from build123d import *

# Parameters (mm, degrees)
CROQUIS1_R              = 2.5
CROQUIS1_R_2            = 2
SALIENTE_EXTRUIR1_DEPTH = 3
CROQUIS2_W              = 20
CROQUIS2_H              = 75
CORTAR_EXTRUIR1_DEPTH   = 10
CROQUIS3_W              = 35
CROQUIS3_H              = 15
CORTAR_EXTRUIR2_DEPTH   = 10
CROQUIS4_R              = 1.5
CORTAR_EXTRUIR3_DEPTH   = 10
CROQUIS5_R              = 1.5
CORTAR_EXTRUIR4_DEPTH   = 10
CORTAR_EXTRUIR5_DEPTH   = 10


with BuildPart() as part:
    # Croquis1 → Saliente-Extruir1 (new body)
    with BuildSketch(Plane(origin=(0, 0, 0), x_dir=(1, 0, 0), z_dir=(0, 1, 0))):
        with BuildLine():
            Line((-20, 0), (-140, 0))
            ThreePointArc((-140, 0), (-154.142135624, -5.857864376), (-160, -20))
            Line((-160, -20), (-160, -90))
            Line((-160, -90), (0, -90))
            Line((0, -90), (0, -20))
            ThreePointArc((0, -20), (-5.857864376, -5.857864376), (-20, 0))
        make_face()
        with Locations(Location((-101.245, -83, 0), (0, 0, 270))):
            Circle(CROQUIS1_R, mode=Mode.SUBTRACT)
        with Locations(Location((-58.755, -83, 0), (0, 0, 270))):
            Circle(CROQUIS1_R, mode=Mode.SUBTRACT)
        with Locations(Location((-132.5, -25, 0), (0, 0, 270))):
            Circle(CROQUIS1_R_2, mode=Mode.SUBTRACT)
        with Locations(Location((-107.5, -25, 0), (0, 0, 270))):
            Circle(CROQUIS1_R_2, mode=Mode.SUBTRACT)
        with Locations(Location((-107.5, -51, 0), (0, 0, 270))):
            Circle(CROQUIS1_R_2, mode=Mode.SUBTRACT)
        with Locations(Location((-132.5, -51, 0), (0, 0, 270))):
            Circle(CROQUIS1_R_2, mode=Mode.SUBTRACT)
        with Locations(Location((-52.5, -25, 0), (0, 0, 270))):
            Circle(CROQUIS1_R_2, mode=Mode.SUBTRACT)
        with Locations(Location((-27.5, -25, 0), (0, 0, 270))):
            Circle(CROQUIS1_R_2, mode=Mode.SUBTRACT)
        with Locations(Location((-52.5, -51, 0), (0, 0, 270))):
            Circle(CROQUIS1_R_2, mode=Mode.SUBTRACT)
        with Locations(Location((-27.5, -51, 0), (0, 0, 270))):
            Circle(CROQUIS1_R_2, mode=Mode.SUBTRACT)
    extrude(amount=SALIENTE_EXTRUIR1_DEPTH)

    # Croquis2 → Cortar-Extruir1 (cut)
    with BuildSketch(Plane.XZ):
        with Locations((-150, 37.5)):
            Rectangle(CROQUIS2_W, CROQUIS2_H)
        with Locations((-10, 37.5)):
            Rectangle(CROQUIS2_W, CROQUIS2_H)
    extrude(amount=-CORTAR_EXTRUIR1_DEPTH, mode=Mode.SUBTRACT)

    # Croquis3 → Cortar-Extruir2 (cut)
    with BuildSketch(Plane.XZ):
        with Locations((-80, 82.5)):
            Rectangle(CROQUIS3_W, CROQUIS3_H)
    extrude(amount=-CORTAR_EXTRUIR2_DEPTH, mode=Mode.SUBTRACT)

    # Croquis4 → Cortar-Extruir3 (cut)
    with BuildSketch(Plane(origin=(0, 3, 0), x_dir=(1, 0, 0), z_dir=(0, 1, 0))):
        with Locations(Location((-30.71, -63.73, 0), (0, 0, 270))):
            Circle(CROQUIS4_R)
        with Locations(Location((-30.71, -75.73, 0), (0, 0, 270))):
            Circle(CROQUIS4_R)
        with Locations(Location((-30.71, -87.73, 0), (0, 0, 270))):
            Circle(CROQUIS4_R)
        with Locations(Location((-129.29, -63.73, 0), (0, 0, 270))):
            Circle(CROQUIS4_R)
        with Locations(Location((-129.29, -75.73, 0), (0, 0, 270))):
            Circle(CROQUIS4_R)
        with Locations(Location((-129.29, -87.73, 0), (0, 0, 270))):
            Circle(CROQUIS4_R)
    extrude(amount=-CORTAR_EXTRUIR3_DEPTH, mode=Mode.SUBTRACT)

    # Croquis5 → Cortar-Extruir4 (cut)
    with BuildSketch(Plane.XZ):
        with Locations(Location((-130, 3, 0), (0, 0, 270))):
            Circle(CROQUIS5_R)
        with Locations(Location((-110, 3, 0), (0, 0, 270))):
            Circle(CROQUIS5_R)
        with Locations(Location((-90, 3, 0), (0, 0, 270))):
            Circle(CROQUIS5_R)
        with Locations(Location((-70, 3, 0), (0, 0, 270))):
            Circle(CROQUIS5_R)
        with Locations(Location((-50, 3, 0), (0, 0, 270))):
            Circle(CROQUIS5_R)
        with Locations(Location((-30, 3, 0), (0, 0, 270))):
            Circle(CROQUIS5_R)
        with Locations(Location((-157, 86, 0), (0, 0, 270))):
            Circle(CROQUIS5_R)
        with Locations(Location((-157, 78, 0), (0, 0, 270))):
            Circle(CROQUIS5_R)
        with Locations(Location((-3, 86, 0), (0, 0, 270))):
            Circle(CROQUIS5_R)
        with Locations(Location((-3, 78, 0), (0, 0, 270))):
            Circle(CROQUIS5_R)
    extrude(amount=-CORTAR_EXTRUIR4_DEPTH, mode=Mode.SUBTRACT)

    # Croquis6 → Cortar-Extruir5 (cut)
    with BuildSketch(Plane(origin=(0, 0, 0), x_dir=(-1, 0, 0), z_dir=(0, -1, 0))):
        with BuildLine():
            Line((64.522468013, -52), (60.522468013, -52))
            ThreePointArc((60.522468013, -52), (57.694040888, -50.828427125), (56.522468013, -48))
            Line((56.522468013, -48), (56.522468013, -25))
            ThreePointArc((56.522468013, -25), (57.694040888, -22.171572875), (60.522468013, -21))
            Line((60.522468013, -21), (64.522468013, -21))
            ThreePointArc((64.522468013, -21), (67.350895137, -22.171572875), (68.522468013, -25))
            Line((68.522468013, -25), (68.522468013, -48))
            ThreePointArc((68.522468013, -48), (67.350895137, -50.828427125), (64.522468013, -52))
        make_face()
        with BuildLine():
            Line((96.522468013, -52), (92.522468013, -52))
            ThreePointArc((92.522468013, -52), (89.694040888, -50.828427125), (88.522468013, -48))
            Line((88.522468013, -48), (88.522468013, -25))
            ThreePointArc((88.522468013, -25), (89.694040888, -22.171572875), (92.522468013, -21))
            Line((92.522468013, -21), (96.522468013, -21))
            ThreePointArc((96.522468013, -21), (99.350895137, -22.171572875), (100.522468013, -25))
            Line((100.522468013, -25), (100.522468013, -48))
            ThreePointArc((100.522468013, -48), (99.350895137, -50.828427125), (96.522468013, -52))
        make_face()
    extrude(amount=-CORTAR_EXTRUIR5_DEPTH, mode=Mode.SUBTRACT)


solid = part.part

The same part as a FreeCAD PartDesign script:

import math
import FreeCAD as App
import Part
import Sketcher

V = App.Vector
Q = App.Units.Quantity

doc = App.newDocument("Part")
body = doc.addObject("PartDesign::Body", "Body")

# Sketch on XZ plane
sketch1 = body.newObject("Sketcher::SketchObject", "Sketch")
sketch1.AttachmentSupport = (doc.getObject("XZ_Plane"), [""])
sketch1.MapMode = "FlatFace"
sketch1.addGeometry([
    Part.LineSegment(V(-20, 0, 0), V(-140, 0, 0)),  # 0
    Part.ArcOfCircle(Part.Circle(V(-140, 20, 0), V(0, 0, 1), 20), math.radians(180), math.radians(270)),  # 1
    Part.LineSegment(V(-160, 20, 0), V(-160, 90, 0)),  # 2
    Part.LineSegment(V(-160, 90, 0), V(0, 90, 0)),  # 3
    Part.LineSegment(V(0, 90, 0), V(0, 20, 0)),  # 4
    Part.ArcOfCircle(Part.Circle(V(-20, 20, 0), V(0, 0, 1), 20), math.radians(-90), math.radians(0)),  # 5
    Part.Circle(V(-101.2, 83, 0), V(0, 0, 1), 2.5),  # 6
    Part.Circle(V(-58.8, 83, 0), V(0, 0, 1), 2.5),  # 7
    Part.Circle(V(-132.5, 51, 0), V(0, 0, 1), 2),  # 8
    Part.Circle(V(-107.5, 51, 0), V(0, 0, 1), 2),  # 9
    Part.Circle(V(-132.5, 25, 0), V(0, 0, 1), 2),  # 10
    Part.Circle(V(-107.5, 25, 0), V(0, 0, 1), 2),  # 11
    Part.Circle(V(-52.5, 51, 0), V(0, 0, 1), 2),  # 12
    Part.Circle(V(-27.5, 51, 0), V(0, 0, 1), 2),  # 13
    Part.Circle(V(-52.5, 25, 0), V(0, 0, 1), 2),  # 14
    Part.Circle(V(-27.5, 25, 0), V(0, 0, 1), 2),  # 15
], False)
sketch1.addConstraint([
    Sketcher.Constraint("Tangent", 0, 2, 1, 2),
    Sketcher.Constraint("Tangent", 1, 1, 2, 1),
    Sketcher.Constraint("Coincident", 2, 2, 3, 1),
    Sketcher.Constraint("Coincident", 3, 2, 4, 1),
    Sketcher.Constraint("Tangent", 4, 2, 5, 2),
    Sketcher.Constraint("Tangent", 5, 1, 0, 1),
    Sketcher.Constraint("Horizontal", 0),
    Sketcher.Constraint("Vertical", 2),
    Sketcher.Constraint("Horizontal", 3),
    Sketcher.Constraint("Vertical", 4),
    Sketcher.Constraint("Equal", 1, 5),
    Sketcher.Constraint("Equal", 6, 7),
    Sketcher.Constraint("Equal", 8, 9),
    Sketcher.Constraint("Equal", 9, 10),
    Sketcher.Constraint("Equal", 10, 11),
    Sketcher.Constraint("Equal", 11, 12),
    Sketcher.Constraint("Equal", 12, 13),
    Sketcher.Constraint("Equal", 13, 14),
    Sketcher.Constraint("Equal", 14, 15),
    Sketcher.Constraint("PointOnObject", 0, 2, -1),
    Sketcher.Constraint("PointOnObject", 3, 2, -2),
    Sketcher.Constraint("Horizontal", 6, 3, 7, 3),
    Sketcher.Constraint("Horizontal", 8, 3, 9, 3),
    Sketcher.Constraint("Horizontal", 10, 3, 11, 3),
    Sketcher.Constraint("Horizontal", 9, 3, 12, 3),
    Sketcher.Constraint("Horizontal", 12, 3, 13, 3),
    Sketcher.Constraint("Horizontal", 11, 3, 14, 3),
    Sketcher.Constraint("Horizontal", 14, 3, 15, 3),
    Sketcher.Constraint("Vertical", 8, 3, 10, 3),
    Sketcher.Constraint("Vertical", 9, 3, 11, 3),
    Sketcher.Constraint("Vertical", 12, 3, 14, 3),
    Sketcher.Constraint("Vertical", 13, 3, 15, 3),
    Sketcher.Constraint("Diameter", 6, Q("5 mm")),
    Sketcher.Constraint("Diameter", 8, Q("4 mm")),
    Sketcher.Constraint("Radius", 1, Q("20 mm")),
    Sketcher.Constraint("DistanceX", 0, 2, 0, 1, Q("120 mm")),
    Sketcher.Constraint("DistanceY", 2, 1, 2, 2, Q("70 mm")),
    Sketcher.Constraint("DistanceY", -1, 1, 6, 3, Q("83 mm")),
    Sketcher.Constraint("DistanceY", -1, 1, 8, 3, Q("51 mm")),
    Sketcher.Constraint("DistanceY", -1, 1, 10, 3, Q("25 mm")),
    Sketcher.Constraint("DistanceX", 8, 3, 9, 3, Q("25 mm")),
    Sketcher.Constraint("DistanceX", 9, 3, 12, 3, Q("55 mm")),
    Sketcher.Constraint("DistanceX", 12, 3, 13, 3, Q("25 mm")),
    Sketcher.Constraint("DistanceX", 8, 3, -1, 1, Q("132.5 mm")),
    Sketcher.Constraint("DistanceX", 6, 3, 7, 3, Q("42.49 mm")),
    Sketcher.Constraint("DistanceX", 6, 3, -1, 1, Q("101.245 mm")),
])
pad1 = body.newObject("PartDesign::Pad", "Pad")
pad1.Profile = sketch1
pad1.Length = 3
pad1.Reversed = True

# Sketch on XZ plane
sketch2 = body.newObject("Sketcher::SketchObject", "Sketch001")
sketch2.AttachmentSupport = (doc.getObject("XZ_Plane"), [""])
sketch2.MapMode = "FlatFace"
sketch2.addGeometry([
    Part.LineSegment(V(-160, 75, 0), V(-160, 0, 0)),  # 0
    Part.LineSegment(V(-160, 0, 0), V(-140, 0, 0)),  # 1
    Part.LineSegment(V(-140, 0, 0), V(-140, 75, 0)),  # 2
    Part.LineSegment(V(-140, 75, 0), V(-160, 75, 0)),  # 3
    Part.LineSegment(V(-20, 75, 0), V(-20, 0, 0)),  # 4
    Part.LineSegment(V(-20, 0, 0), V(0, 0, 0)),  # 5
    Part.LineSegment(V(0, 0, 0), V(0, 75, 0)),  # 6
    Part.LineSegment(V(0, 75, 0), V(-20, 75, 0)),  # 7
], False)
sketch2.addConstraint([
    Sketcher.Constraint("Coincident", 0, 2, 1, 1),
    Sketcher.Constraint("Coincident", 1, 2, 2, 1),
    Sketcher.Constraint("Coincident", 2, 2, 3, 1),
    Sketcher.Constraint("Coincident", 3, 2, 0, 1),
    Sketcher.Constraint("Coincident", 4, 2, 5, 1),
    Sketcher.Constraint("Coincident", 5, 2, 6, 1),
    Sketcher.Constraint("Coincident", 6, 2, 7, 1),
    Sketcher.Constraint("Coincident", 7, 2, 4, 1),
    Sketcher.Constraint("Vertical", 0),
    Sketcher.Constraint("Horizontal", 1),
    Sketcher.Constraint("Vertical", 2),
    Sketcher.Constraint("Horizontal", 3),
    Sketcher.Constraint("Vertical", 4),
    Sketcher.Constraint("Horizontal", 5),
    Sketcher.Constraint("Vertical", 6),
    Sketcher.Constraint("Horizontal", 7),
    Sketcher.Constraint("Coincident", 5, 2, -1, 1),
    Sketcher.Constraint("PointOnObject", 0, 2, -1),
    Sketcher.Constraint("Horizontal", 3, 2, 6, 2),
    Sketcher.Constraint("Equal", 3, 5),
    Sketcher.Constraint("DistanceX", 1, 1, 1, 2, Q("20 mm")),
    Sketcher.Constraint("DistanceY", 0, 2, 0, 1, Q("75 mm")),
    Sketcher.Constraint("DistanceX", 0, 2, -1, 1, Q("160 mm")),
])
pocket1 = body.newObject("PartDesign::Pocket", "Pocket")
pocket1.Profile = sketch2
pocket1.Length = 10

# Sketch on XZ plane
sketch3 = body.newObject("Sketcher::SketchObject", "Sketch002")
sketch3.AttachmentSupport = (doc.getObject("XZ_Plane"), [""])
sketch3.MapMode = "FlatFace"
sketch3.addGeometry([
    Part.LineSegment(V(-98, 90, 0), V(-98, 75, 0)),
    Part.LineSegment(V(-98, 75, 0), V(-62, 75, 0)),
    Part.LineSegment(V(-62, 75, 0), V(-62, 90, 0)),
    Part.LineSegment(V(-62, 90, 0), V(-98, 90, 0)),
], False)
sketch3.addConstraint([
    Sketcher.Constraint("Coincident", 0, 2, 1, 1),
    Sketcher.Constraint("Coincident", 1, 2, 2, 1),
    Sketcher.Constraint("Coincident", 2, 2, 3, 1),
    Sketcher.Constraint("Coincident", 3, 2, 0, 1),
    Sketcher.Constraint("Vertical", 0),
    Sketcher.Constraint("Horizontal", 1),
    Sketcher.Constraint("Vertical", 2),
    Sketcher.Constraint("Horizontal", 3),
    Sketcher.Constraint("DistanceX", 1, 1, 1, 2, Q("35 mm")),
    Sketcher.Constraint("DistanceY", 0, 2, 0, 1, Q("15 mm")),
    Sketcher.Constraint("DistanceY", -1, 1, 0, 2, Q("75 mm")),
    Sketcher.Constraint("DistanceX", 0, 2, -1, 1, Q("97.5 mm")),
])
pocket2 = body.newObject("PartDesign::Pocket", "Pocket001")
pocket2.Profile = sketch3
pocket2.Length = 10

# Sketch on XZ plane
sketch4 = body.newObject("Sketcher::SketchObject", "Sketch003")
sketch4.AttachmentSupport = (doc.getObject("XZ_Plane"), [""])
sketch4.MapMode = "FlatFace"
sketch4.AttachmentOffset = App.Placement(V(0, 0, -3), App.Rotation())
sketch4.addGeometry([
    Part.Circle(V(-30.7, 63.7, 0), V(0, 0, 1), 1.5),  # 0
    Part.Circle(V(-30.7, 75.7, 0), V(0, 0, 1), 1.5),  # 1
    Part.Circle(V(-30.7, 87.7, 0), V(0, 0, 1), 1.5),  # 2
    Part.Circle(V(-129.3, 63.7, 0), V(0, 0, 1), 1.5),  # 3
    Part.Circle(V(-129.3, 75.7, 0), V(0, 0, 1), 1.5),  # 4
    Part.Circle(V(-129.3, 87.7, 0), V(0, 0, 1), 1.5),  # 5
], False)
sketch4.addConstraint([
    Sketcher.Constraint("Equal", 0, 1),
    Sketcher.Constraint("Equal", 1, 2),
    Sketcher.Constraint("Equal", 2, 3),
    Sketcher.Constraint("Equal", 3, 4),
    Sketcher.Constraint("Equal", 4, 5),
    Sketcher.Constraint("Horizontal", 0, 3, 3, 3),
    Sketcher.Constraint("Horizontal", 1, 3, 4, 3),
    Sketcher.Constraint("Horizontal", 2, 3, 5, 3),
    Sketcher.Constraint("Vertical", 0, 3, 1, 3),
    Sketcher.Constraint("Vertical", 1, 3, 2, 3),
    Sketcher.Constraint("Vertical", 3, 3, 4, 3),
    Sketcher.Constraint("Vertical", 4, 3, 5, 3),
    Sketcher.Constraint("Diameter", 0, Q("3 mm")),
    Sketcher.Constraint("DistanceY", 0, 3, 1, 3, Q("12 mm")),
    Sketcher.Constraint("DistanceY", 1, 3, 2, 3, Q("12 mm")),
    Sketcher.Constraint("DistanceX", 0, 3, -1, 1, Q("30.71 mm")),
    Sketcher.Constraint("DistanceY", -1, 1, 0, 3, Q("63.73 mm")),
    Sketcher.Constraint("DistanceX", 3, 3, -1, 1, Q("129.29 mm")),
])
pocket3 = body.newObject("PartDesign::Pocket", "Pocket002")
pocket3.Profile = sketch4
pocket3.Length = 10
pocket3.Reversed = True

# Sketch on XZ plane
sketch5 = body.newObject("Sketcher::SketchObject", "Sketch004")
sketch5.AttachmentSupport = (doc.getObject("XZ_Plane"), [""])
sketch5.MapMode = "FlatFace"
sketch5.addGeometry([
    Part.Circle(V(-130, 3, 0), V(0, 0, 1), 1.5),  # 0
    Part.Circle(V(-110, 3, 0), V(0, 0, 1), 1.5),  # 1
    Part.Circle(V(-90, 3, 0), V(0, 0, 1), 1.5),  # 2
    Part.Circle(V(-70, 3, 0), V(0, 0, 1), 1.5),  # 3
    Part.Circle(V(-50, 3, 0), V(0, 0, 1), 1.5),  # 4
    Part.Circle(V(-30, 3, 0), V(0, 0, 1), 1.5),  # 5
    Part.Circle(V(-157, 86, 0), V(0, 0, 1), 1.5),  # 6
    Part.Circle(V(-157, 78, 0), V(0, 0, 1), 1.5),  # 7
    Part.Circle(V(-3, 86, 0), V(0, 0, 1), 1.5),  # 8
    Part.Circle(V(-3, 78, 0), V(0, 0, 1), 1.5),  # 9
], False)
sketch5.addConstraint([
    Sketcher.Constraint("Equal", 0, 1),
    Sketcher.Constraint("Equal", 1, 2),
    Sketcher.Constraint("Equal", 2, 3),
    Sketcher.Constraint("Equal", 3, 4),
    Sketcher.Constraint("Equal", 4, 5),
    Sketcher.Constraint("Equal", 5, 6),
    Sketcher.Constraint("Equal", 6, 7),
    Sketcher.Constraint("Equal", 7, 8),
    Sketcher.Constraint("Equal", 8, 9),
    Sketcher.Constraint("Horizontal", 0, 3, 1, 3),
    Sketcher.Constraint("Horizontal", 1, 3, 2, 3),
    Sketcher.Constraint("Horizontal", 2, 3, 3, 3),
    Sketcher.Constraint("Horizontal", 3, 3, 4, 3),
    Sketcher.Constraint("Horizontal", 4, 3, 5, 3),
    Sketcher.Constraint("Horizontal", 6, 3, 8, 3),
    Sketcher.Constraint("Horizontal", 7, 3, 9, 3),
    Sketcher.Constraint("Vertical", 6, 3, 7, 3),
    Sketcher.Constraint("Vertical", 8, 3, 9, 3),
    Sketcher.Constraint("Diameter", 0, Q("3 mm")),
    Sketcher.Constraint("DistanceX", 0, 3, -1, 1, Q("130 mm")),
    Sketcher.Constraint("DistanceY", -1, 1, 0, 3, Q("3 mm")),
    Sketcher.Constraint("DistanceX", 1, 3, -1, 1, Q("110 mm")),
    Sketcher.Constraint("DistanceX", 2, 3, -1, 1, Q("90 mm")),
    Sketcher.Constraint("DistanceX", 3, 3, -1, 1, Q("70 mm")),
    Sketcher.Constraint("DistanceX", 4, 3, -1, 1, Q("50 mm")),
    Sketcher.Constraint("DistanceX", 5, 3, -1, 1, Q("30 mm")),
    Sketcher.Constraint("DistanceX", 6, 3, -1, 1, Q("157 mm")),
    Sketcher.Constraint("DistanceY", -1, 1, 6, 3, Q("86 mm")),
    Sketcher.Constraint("DistanceY", -1, 1, 7, 3, Q("78 mm")),
    Sketcher.Constraint("DistanceX", 8, 3, -1, 1, Q("3 mm")),
])
pocket4 = body.newObject("PartDesign::Pocket", "Pocket003")
pocket4.Profile = sketch5
pocket4.Length = 10

# Sketch on XZ plane
sketch6 = body.newObject("Sketcher::SketchObject", "Sketch005")
sketch6.AttachmentSupport = (doc.getObject("XZ_Plane"), [""])
sketch6.MapMode = "FlatFace"
sketch6.addGeometry([
    Part.LineSegment(V(-60.5, 52, 0), V(-64.5, 52, 0)),  # 0
    Part.ArcOfCircle(Part.Circle(V(-64.5, 48, 0), V(0, 0, 1), 4), math.radians(90), math.radians(180)),  # 1
    Part.LineSegment(V(-68.5, 48, 0), V(-68.5, 25, 0)),  # 2
    Part.ArcOfCircle(Part.Circle(V(-64.5, 25, 0), V(0, 0, 1), 4), math.radians(-180), math.radians(-90)),  # 3
    Part.LineSegment(V(-64.5, 21, 0), V(-60.5, 21, 0)),  # 4
    Part.ArcOfCircle(Part.Circle(V(-60.5, 25, 0), V(0, 0, 1), 4), math.radians(-90), math.radians(0)),  # 5
    Part.LineSegment(V(-56.5, 25, 0), V(-56.5, 48, 0)),  # 6
    Part.ArcOfCircle(Part.Circle(V(-60.5, 48, 0), V(0, 0, 1), 4), math.radians(0), math.radians(90)),  # 7
    Part.LineSegment(V(-92.5, 52, 0), V(-96.5, 52, 0)),  # 8
    Part.ArcOfCircle(Part.Circle(V(-96.5, 48, 0), V(0, 0, 1), 4), math.radians(90), math.radians(180)),  # 9
    Part.LineSegment(V(-100.5, 48, 0), V(-100.5, 25, 0)),  # 10
    Part.ArcOfCircle(Part.Circle(V(-96.5, 25, 0), V(0, 0, 1), 4), math.radians(-180), math.radians(-90)),  # 11
    Part.LineSegment(V(-96.5, 21, 0), V(-92.5, 21, 0)),  # 12
    Part.ArcOfCircle(Part.Circle(V(-92.5, 25, 0), V(0, 0, 1), 4), math.radians(-90), math.radians(0)),  # 13
    Part.LineSegment(V(-88.5, 25, 0), V(-88.5, 48, 0)),  # 14
    Part.ArcOfCircle(Part.Circle(V(-92.5, 48, 0), V(0, 0, 1), 4), math.radians(0), math.radians(90)),  # 15
], False)
sketch6.addConstraint([
    Sketcher.Constraint("Tangent", 0, 2, 1, 1),
    Sketcher.Constraint("Tangent", 1, 2, 2, 1),
    Sketcher.Constraint("Tangent", 2, 2, 3, 1),
    Sketcher.Constraint("Tangent", 3, 2, 4, 1),
    Sketcher.Constraint("Tangent", 4, 2, 5, 1),
    Sketcher.Constraint("Tangent", 5, 2, 6, 1),
    Sketcher.Constraint("Tangent", 6, 2, 7, 1),
    Sketcher.Constraint("Tangent", 7, 2, 0, 1),
    Sketcher.Constraint("Tangent", 8, 2, 9, 1),
    Sketcher.Constraint("Tangent", 9, 2, 10, 1),
    Sketcher.Constraint("Tangent", 10, 2, 11, 1),
    Sketcher.Constraint("Tangent", 11, 2, 12, 1),
    Sketcher.Constraint("Tangent", 12, 2, 13, 1),
    Sketcher.Constraint("Tangent", 13, 2, 14, 1),
    Sketcher.Constraint("Tangent", 14, 2, 15, 1),
    Sketcher.Constraint("Tangent", 15, 2, 8, 1),
    Sketcher.Constraint("Horizontal", 0),
    Sketcher.Constraint("Vertical", 2),
    Sketcher.Constraint("Horizontal", 4),
    Sketcher.Constraint("Vertical", 6),
    Sketcher.Constraint("Horizontal", 8),
    Sketcher.Constraint("Vertical", 10),
    Sketcher.Constraint("Horizontal", 12),
    Sketcher.Constraint("Vertical", 14),
    Sketcher.Constraint("Equal", 1, 3),
    Sketcher.Constraint("Equal", 3, 5),
    Sketcher.Constraint("Equal", 5, 7),
    Sketcher.Constraint("Equal", 7, 9),
    Sketcher.Constraint("Equal", 9, 11),
    Sketcher.Constraint("Equal", 11, 13),
    Sketcher.Constraint("Equal", 13, 15),
    Sketcher.Constraint("Horizontal", 7, 3, 9, 3),
    Sketcher.Constraint("Horizontal", 5, 3, 11, 3),
    Sketcher.Constraint("Equal", 4, 8),
    Sketcher.Constraint("Radius", 1, Q("4 mm")),
    Sketcher.Constraint("DistanceX", 0, 2, 0, 1, Q("4 mm")),
    Sketcher.Constraint("DistanceY", 2, 2, 2, 1, Q("23 mm")),
    Sketcher.Constraint("DistanceY", -1, 1, 1, 3, Q("48 mm")),
    Sketcher.Constraint("DistanceX", 9, 3, 1, 3, Q("32 mm")),
    Sketcher.Constraint("DistanceX", 1, 3, -1, 1, Q("64.522468 mm")),
])
pocket5 = body.newObject("PartDesign::Pocket", "Pocket004")
pocket5.Profile = sketch6
pocket5.Length = 10

doc.recompute()
